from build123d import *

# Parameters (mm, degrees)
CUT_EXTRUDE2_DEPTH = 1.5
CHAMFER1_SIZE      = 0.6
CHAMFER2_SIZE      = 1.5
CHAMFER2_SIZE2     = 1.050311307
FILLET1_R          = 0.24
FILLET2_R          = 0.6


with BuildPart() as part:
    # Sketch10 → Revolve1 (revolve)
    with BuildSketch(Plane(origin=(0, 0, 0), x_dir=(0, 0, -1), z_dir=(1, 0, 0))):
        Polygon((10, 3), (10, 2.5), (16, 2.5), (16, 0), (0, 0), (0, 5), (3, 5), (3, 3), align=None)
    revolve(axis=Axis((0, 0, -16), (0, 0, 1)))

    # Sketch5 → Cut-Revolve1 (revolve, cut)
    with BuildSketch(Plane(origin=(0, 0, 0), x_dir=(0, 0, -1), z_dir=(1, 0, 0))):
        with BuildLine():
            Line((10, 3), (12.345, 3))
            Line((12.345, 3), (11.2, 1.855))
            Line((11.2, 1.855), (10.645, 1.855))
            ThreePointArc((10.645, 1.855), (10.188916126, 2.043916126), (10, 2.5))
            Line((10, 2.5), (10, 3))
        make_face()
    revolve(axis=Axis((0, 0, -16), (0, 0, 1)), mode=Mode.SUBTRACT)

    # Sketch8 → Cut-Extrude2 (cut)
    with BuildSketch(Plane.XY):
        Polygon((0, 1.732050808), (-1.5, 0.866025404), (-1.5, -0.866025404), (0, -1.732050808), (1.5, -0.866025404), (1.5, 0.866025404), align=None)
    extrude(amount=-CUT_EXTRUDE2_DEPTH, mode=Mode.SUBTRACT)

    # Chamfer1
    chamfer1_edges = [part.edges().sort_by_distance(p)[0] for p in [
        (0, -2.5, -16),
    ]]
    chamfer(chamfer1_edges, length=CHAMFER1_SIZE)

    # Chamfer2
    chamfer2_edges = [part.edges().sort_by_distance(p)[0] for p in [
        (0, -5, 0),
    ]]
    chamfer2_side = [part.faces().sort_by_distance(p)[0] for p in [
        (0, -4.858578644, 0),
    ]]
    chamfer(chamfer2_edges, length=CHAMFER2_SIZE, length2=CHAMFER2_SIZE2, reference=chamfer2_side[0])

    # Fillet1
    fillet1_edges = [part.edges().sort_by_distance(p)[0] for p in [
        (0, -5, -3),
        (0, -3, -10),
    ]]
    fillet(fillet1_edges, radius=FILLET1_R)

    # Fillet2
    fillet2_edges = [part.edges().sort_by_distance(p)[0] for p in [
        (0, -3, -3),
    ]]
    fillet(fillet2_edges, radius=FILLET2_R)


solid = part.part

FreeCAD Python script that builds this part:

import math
import FreeCAD as App
import Part
import Sketcher
Q = App.Units.Quantity


def edges_at(feature, points):
    """Names of the edges that pass closest to the given points."""
    edges = feature.Shape.Edges
    near = lambda p: min(range(len(edges)), key=lambda i: edges[i].distToShape(Part.Vertex(*p))[0])
    return sorted({f"Edge{near(p) + 1}" for p in points})


def add_polygon(sketch, points):
    """Adds a closed chain of lines whose ends are joined by coincident constraints."""
    first, n = sketch.GeometryCount, len(points)
    for a, b in zip(points, points[1:] + points[:1]):
        sketch.addGeometry(Part.LineSegment(App.Vector(*a, 0), App.Vector(*b, 0)), False)
    for i in range(n):
        sketch.addConstraint(Sketcher.Constraint("Coincident", first + i, 2, first + (i + 1) % n, 1))

doc = App.newDocument("Part")
body = doc.addObject("PartDesign::Body", "Body")

# Sketch on YZ plane
sketch1 = body.newObject("Sketcher::SketchObject", "Sketch")
sketch1.AttachmentSupport = (doc.getObject("YZ_Plane"), [""])
sketch1.MapMode = "FlatFace"
add_polygon(sketch1, [(2.5, -10), (3, -10), (3, -3), (5, -3), (5, 0), (0, 0), (0, -16), (2.5, -16)])  # lines 0-7
sketch1.addConstraint(Sketcher.Constraint("Horizontal", 0))
sketch1.addConstraint(Sketcher.Constraint("Vertical", 1))
sketch1.addConstraint(Sketcher.Constraint("Horizontal", 2))
sketch1.addConstraint(Sketcher.Constraint("Vertical", 3))
sketch1.addConstraint(Sketcher.Constraint("Horizontal", 4))
sketch1.addConstraint(Sketcher.Constraint("Vertical", 5))
sketch1.addConstraint(Sketcher.Constraint("Horizontal", 6))
sketch1.addConstraint(Sketcher.Constraint("Vertical", 7))
sketch1.addConstraint(Sketcher.Constraint("Coincident", 4, 2, -1, 1))
sketch1.addConstraint(Sketcher.Constraint("DistanceX", 2, 1, 2, 2, Q("2 mm")))
sketch1.addConstraint(Sketcher.Constraint("DistanceX", 4, 2, 4, 1, Q("5 mm")))
sketch1.addConstraint(Sketcher.Constraint("DistanceY", 1, 1, 1, 2, Q("7 mm")))
sketch1.addConstraint(Sketcher.Constraint("DistanceY", 3, 1, 3, 2, Q("3 mm")))
sketch1.addConstraint(Sketcher.Constraint("DistanceY", 5, 2, 5, 1, Q("16 mm")))
sketch1.addConstraint(Sketcher.Constraint("DistanceX", 0, 1, 0, 2, Q("0.5 mm")))
revolution = body.newObject("PartDesign::Revolution", "Revolution")
revolution.Profile = sketch1
revolution.ReferenceAxis = (sketch1, ["V_Axis"])
revolution.Angle = 360

# Sketch on YZ plane
sketch2 = body.newObject("Sketcher::SketchObject", "Sketch001")
sketch2.AttachmentSupport = (doc.getObject("YZ_Plane"), [""])
sketch2.MapMode = "FlatFace"
sketch2.addGeometry(Part.LineSegment(App.Vector(3, -12.345, 0), App.Vector(3, -10, 0)), False)
sketch2.addGeometry(Part.LineSegment(App.Vector(3, -10, 0), App.Vector(2.5, -10, 0)), False)
sketch2.addGeometry(Part.ArcOfCircle(Part.Circle(App.Vector(2.5, -10.645, 0), App.Vector(0, 0, 1), 0.645), math.radians(90), math.radians(180)), False)
sketch2.addGeometry(Part.LineSegment(App.Vector(1.855, -10.645, 0), App.Vector(1.855, -11.2, 0)), False)
sketch2.addGeometry(Part.LineSegment(App.Vector(1.855, -11.2, 0), App.Vector(3, -12.345, 0)), False)
sketch2.addConstraint(Sketcher.Constraint("Coincident", 0, 2, 1, 1))
sketch2.addConstraint(Sketcher.Constraint("Tangent", 1, 2, 2, 1))
sketch2.addConstraint(Sketcher.Constraint("Tangent", 2, 2, 3, 1))
sketch2.addConstraint(Sketcher.Constraint("Coincident", 3, 2, 4, 1))
sketch2.addConstraint(Sketcher.Constraint("Coincident", 4, 2, 0, 1))
sketch2.addConstraint(Sketcher.Constraint("Vertical", 0))
sketch2.addConstraint(Sketcher.Constraint("Horizontal", 1))
sketch2.addConstraint(Sketcher.Constraint("Vertical", 3))
sketch2.addConstraint(Sketcher.Constraint("Angle", 4, Q("-45 deg")))
sketch2.addConstraint(Sketcher.Constraint("DistanceX", 1, 2, 1, 1, Q("0.5 mm")))
sketch2.addConstraint(Sketcher.Constraint("DistanceX", -1, 1, 0, 2, Q("3 mm")))
sketch2.addConstraint(Sketcher.Constraint("DistanceY", 0, 2, -1, 1, Q("10 mm")))
sketch2.addConstraint(Sketcher.Constraint("Radius", 2, Q("0.645 mm")))
sketch2.addConstraint(Sketcher.Constraint("DistanceY", 3, 2, -1, 1, Q("11.2 mm")))
groove = body.newObject("PartDesign::Groove", "Groove")
groove.Profile = sketch2
groove.ReferenceAxis = (sketch2, ["V_Axis"])
groove.Angle = 360

# Sketch on XY plane
sketch3 = body.newObject("Sketcher::SketchObject", "Sketch002")
sketch3.AttachmentSupport = (doc.getObject("XY_Plane"), [""])
sketch3.MapMode = "FlatFace"
add_polygon(sketch3, [(0, 1.732051), (-1.5, 0.866025), (-1.5, -0.866025), (0, -1.732051), (1.5, -0.866025), (1.5, 0.866025)])  # lines 0-5
sketch3.addConstraint(Sketcher.Constraint("Vertical", 1))
sketch3.addConstraint(Sketcher.Constraint("Vertical", 4))
sketch3.addConstraint(Sketcher.Constraint("Symmetric", 0, 2, 3, 2, -1, 1))
sketch3.addConstraint(Sketcher.Constraint("Symmetric", 2, 2, 5, 2, -1, 1))
sketch3.addConstraint(Sketcher.Constraint("PointOnObject", 2, 2, -2))
sketch3.addConstraint(Sketcher.Constraint("Parallel", 2, 5))
sketch3.addConstraint(Sketcher.Constraint("Horizontal", 1, 2, 3, 2))
sketch3.addConstraint(Sketcher.Constraint("Angle", 0, Q("-150 deg")))
sketch3.addConstraint(Sketcher.Constraint("DistanceX", 1, 2, 3, 2, Q("3 mm")))
sketch3.addConstraint(Sketcher.Constraint("DistanceY", 1, 2, 1, 1, Q("1.732051 mm")))
pocket1 = body.newObject("PartDesign::Pocket", "Pocket")
pocket1.Profile = sketch3
pocket1.Length = 1.5
doc.recompute()

chamfer = body.newObject("PartDesign::Chamfer", "Chamfer")
chamfer.Base = (pocket1, edges_at(pocket1, [(0, -2.5, -16)]))
chamfer.Size = 0.6
doc.recompute()

chamfer2 = body.newObject("PartDesign::Chamfer", "Chamfer001")
chamfer2.Base = (chamfer, edges_at(chamfer, [(0, -5, 0)]))
chamfer2.ChamferType = "Two distances"
chamfer2.Size = 1.5
chamfer2.Size2 = 1.050311
chamfer2.FlipDirection = True
doc.recompute()

fillet = body.newObject("PartDesign::Fillet", "Fillet")
fillet.Base = (chamfer2, edges_at(chamfer2, [(0, -5, -3), (0, -3, -10)]))
fillet.Radius = 0.24
doc.recompute()

fillet2 = body.newObject("PartDesign::Fillet", "Fillet001")
fillet2.Base = (fillet, edges_at(fillet, [(0, -3, -3)]))
fillet2.Radius = 0.6

doc.recompute()
